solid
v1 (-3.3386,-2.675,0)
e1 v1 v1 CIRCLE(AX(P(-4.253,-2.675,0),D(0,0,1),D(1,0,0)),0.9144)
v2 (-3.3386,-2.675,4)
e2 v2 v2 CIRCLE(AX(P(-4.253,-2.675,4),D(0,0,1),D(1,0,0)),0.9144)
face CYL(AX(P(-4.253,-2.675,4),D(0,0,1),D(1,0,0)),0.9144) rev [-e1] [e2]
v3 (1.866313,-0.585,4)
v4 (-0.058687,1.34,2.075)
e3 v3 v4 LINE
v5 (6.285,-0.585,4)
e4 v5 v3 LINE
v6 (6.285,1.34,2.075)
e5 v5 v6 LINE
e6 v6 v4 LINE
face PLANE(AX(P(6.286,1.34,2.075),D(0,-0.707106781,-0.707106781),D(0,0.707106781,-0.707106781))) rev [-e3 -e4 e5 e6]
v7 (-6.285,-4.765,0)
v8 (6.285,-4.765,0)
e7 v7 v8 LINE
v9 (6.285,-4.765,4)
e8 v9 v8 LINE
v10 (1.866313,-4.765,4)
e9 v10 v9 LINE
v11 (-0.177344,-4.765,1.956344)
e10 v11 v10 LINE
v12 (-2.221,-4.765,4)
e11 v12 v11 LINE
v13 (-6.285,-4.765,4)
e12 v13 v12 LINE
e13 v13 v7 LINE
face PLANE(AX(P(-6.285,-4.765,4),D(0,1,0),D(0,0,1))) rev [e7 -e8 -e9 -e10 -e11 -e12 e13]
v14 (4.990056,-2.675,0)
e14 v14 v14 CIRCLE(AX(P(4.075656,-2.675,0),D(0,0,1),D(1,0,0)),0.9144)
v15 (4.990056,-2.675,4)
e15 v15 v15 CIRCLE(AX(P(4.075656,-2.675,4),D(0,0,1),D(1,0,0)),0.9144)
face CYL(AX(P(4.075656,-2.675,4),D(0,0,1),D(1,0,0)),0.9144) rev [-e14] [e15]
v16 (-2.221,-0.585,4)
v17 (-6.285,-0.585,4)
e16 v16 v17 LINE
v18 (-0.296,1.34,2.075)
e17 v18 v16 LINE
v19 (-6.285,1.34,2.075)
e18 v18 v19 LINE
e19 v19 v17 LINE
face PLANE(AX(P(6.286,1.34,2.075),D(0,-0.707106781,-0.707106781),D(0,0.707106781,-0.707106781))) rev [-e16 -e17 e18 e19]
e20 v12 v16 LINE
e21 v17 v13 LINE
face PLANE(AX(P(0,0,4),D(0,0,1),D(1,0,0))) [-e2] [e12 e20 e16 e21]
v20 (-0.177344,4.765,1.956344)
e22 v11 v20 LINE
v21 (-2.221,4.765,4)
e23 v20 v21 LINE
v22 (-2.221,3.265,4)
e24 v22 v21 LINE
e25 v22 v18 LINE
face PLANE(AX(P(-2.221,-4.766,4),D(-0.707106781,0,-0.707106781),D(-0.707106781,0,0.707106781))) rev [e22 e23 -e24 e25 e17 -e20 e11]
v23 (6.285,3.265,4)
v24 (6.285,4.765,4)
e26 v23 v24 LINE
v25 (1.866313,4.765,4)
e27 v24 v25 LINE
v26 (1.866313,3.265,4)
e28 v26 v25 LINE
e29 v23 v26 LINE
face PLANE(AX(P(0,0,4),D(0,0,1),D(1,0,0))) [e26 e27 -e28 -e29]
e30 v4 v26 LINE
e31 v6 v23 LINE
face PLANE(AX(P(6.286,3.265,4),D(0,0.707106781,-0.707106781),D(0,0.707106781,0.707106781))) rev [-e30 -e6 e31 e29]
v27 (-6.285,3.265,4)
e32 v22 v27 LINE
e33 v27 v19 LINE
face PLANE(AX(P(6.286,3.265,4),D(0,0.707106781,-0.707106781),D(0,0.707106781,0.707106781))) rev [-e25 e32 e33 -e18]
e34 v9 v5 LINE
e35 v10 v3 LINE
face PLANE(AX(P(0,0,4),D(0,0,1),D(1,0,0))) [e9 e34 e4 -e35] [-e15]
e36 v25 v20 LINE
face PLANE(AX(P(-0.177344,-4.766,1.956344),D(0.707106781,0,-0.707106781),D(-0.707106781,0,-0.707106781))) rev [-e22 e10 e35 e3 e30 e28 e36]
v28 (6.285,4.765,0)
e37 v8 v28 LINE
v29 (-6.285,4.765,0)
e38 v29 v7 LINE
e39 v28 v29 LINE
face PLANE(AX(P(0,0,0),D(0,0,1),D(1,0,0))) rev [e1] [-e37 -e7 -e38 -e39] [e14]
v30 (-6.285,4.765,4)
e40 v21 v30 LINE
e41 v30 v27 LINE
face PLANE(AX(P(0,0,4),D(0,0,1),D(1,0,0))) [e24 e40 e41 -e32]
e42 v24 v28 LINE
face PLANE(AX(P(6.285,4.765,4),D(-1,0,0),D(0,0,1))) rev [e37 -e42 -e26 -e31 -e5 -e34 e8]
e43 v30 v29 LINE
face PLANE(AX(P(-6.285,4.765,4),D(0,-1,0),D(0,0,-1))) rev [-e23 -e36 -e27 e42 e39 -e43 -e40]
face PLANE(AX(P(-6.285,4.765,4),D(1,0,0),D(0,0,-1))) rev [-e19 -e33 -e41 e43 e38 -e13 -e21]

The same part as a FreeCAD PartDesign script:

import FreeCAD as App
import Part
import Sketcher
from FreeCAD import Vector
Q = App.Units.Quantity

doc = App.newDocument("Part")
body = doc.addObject("PartDesign::Body", "Body")

# Sketch on XY plane
sketch1 = doc.addObject("Sketcher::SketchObject", "Sketch")
body.addObject(sketch1)
sketch1.AttachmentSupport = (doc.XY_Plane, [""])
sketch1.MapMode = "FlatFace"
sketch1.addGeometry([
    Part.LineSegment(Vector(-6, 5, 0), Vector(-6, -5, 0)),
    Part.LineSegment(Vector(-6, -5, 0), Vector(6, -5, 0)),
    Part.LineSegment(Vector(6, -5, 0), Vector(6, 5, 0)),
    Part.LineSegment(Vector(6, 5, 0), Vector(-6, 5, 0)),
], False)
sketch1.addConstraint([
    Sketcher.Constraint("Coincident", 0, 2, 1, 1),
    Sketcher.Constraint("Coincident", 1, 2, 2, 1),
    Sketcher.Constraint("Coincident", 2, 2, 3, 1),
    Sketcher.Constraint("Coincident", 3, 2, 0, 1),
    Sketcher.Constraint("Vertical", 0),
    Sketcher.Constraint("Horizontal", 1),
    Sketcher.Constraint("Vertical", 2),
    Sketcher.Constraint("Horizontal", 3),
    Sketcher.Constraint("Symmetric", 0, 2, 2, 2, -1, 1),
    Sketcher.Constraint("DistanceX", 1, 1, 1, 2, Q("12.57 mm")),
    Sketcher.Constraint("DistanceY", 0, 2, 0, 1, Q("9.53 mm")),
])
pad1 = doc.addObject("PartDesign::Pad", "Pad")
body.addObject(pad1)
pad1.Profile = sketch1
pad1.Length = 4

# Sketch on YZ plane
sketch2 = doc.addObject("Sketcher::SketchObject", "Sketch001")
body.addObject(sketch2)
sketch2.AttachmentSupport = (doc.YZ_Plane, [""])
sketch2.MapMode = "FlatFace"
sketch2.AttachmentOffset = App.Placement(Vector(0, 0, -6.285), App.Rotation())
sketch2.addGeometry([
    Part.LineSegment(Vector(-0.6, 4, 0), Vector(3.3, 4, 0)),
    Part.LineSegment(Vector(3.3, 4, 0), Vector(1.3, 2.1, 0)),
    Part.LineSegment(Vector(1.3, 2.1, 0), Vector(-0.6, 4, 0)),
], False)
sketch2.addConstraint([
    Sketcher.Constraint("Coincident", 0, 2, 1, 1),
    Sketcher.Constraint("Coincident", 1, 2, 2, 1),
    Sketcher.Constraint("Coincident", 2, 2, 0, 1),
    Sketcher.Constraint("Horizontal", 0),
    Sketcher.Constraint("Perpendicular", 1, 2),
    Sketcher.Constraint("Equal", 1, 2),
    Sketcher.Constraint("DistanceY", -1, 1, 0, 2, Q("4 mm")),
    Sketcher.Constraint("DistanceX", 0, 1, 0, 2, Q("3.85 mm")),
    Sketcher.Constraint("DistanceX", -1, 1, 1, 2, Q("1.34 mm")),
])
pocket1 = doc.addObject("PartDesign::Pocket", "Pocket")
body.addObject(pocket1)
pocket1.Profile = sketch2
pocket1.Type = "UpToFirst"
pocket1.Reversed = True

# Sketch on XZ plane
sketch3 = doc.addObject("Sketcher::SketchObject", "Sketch002")
body.addObject(sketch3)
sketch3.AttachmentSupport = (doc.XZ_Plane, [""])
sketch3.MapMode = "FlatFace"
sketch3.AttachmentOffset = App.Placement(Vector(0, 0, -4.765), App.Rotation())
sketch3.addGeometry([
    Part.LineSegment(Vector(-0.2, 2, 0), Vector(-2.2, 4, 0)),
    Part.LineSegment(Vector(-2.2, 4, 0), Vector(1.9, 4, 0)),
    Part.LineSegment(Vector(1.9, 4, 0), Vector(-0.2, 2, 0)),
], False)
sketch3.addConstraint([
    Sketcher.Constraint("Coincident", 0, 2, 1, 1),
    Sketcher.Constraint("Coincident", 1, 2, 2, 1),
    Sketcher.Constraint("Coincident", 2, 2, 0, 1),
    Sketcher.Constraint("Horizontal", 1),
    Sketcher.Constraint("Perpendicular", 0, 2),
    Sketcher.Constraint("Equal", 0, 2),
    Sketcher.Constraint("DistanceY", -1, 1, 0, 2, Q("4 mm")),
    Sketcher.Constraint("DistanceX", 0, 2, -1, 1, Q("2.221 mm")),
    Sketcher.Constraint("DistanceX", 1, 1, 1, 2, Q("4.087313 mm")),
])
pocket2 = doc.addObject("PartDesign::Pocket", "Pocket001")
body.addObject(pocket2)
pocket2.Profile = sketch3
pocket2.Length = 9.53
pocket2.Reversed = True

# Sketch on XY plane
sketch4 = doc.addObject("Sketcher::SketchObject", "Sketch003")
body.addObject(sketch4)
sketch4.AttachmentSupport = (doc.XY_Plane, [""])
sketch4.MapMode = "FlatFace"
sketch4.AttachmentOffset = App.Placement(Vector(0, 0, 4), App.Rotation())
sketch4.addGeometry([
    Part.Circle(Vector(-4.3, -2.7, 0), Vector(0, 0, 1), 0.9),
    Part.Circle(Vector(4.1, -2.7, 0), Vector(0, 0, 1), 0.9),
], False)
sketch4.addConstraint([
    Sketcher.Constraint("Equal", 0, 1),
    Sketcher.Constraint("Horizontal", 0, 3, 1, 3),
    Sketcher.Constraint("Diameter", 0, Q("1.8288 mm")),
    Sketcher.Constraint("DistanceX", 0, 3, -1, 1, Q("4.253 mm")),
    Sketcher.Constraint("DistanceY", 0, 3, -1, 1, Q("2.675 mm")),
    Sketcher.Constraint("DistanceX", -1, 1, 1, 3, Q("4.075656 mm")),
])
doc.recompute()
hole = doc.addObject("PartDesign::Hole", "Hole")
body.addObject(hole)
hole.Profile = sketch4
hole.ThreadType = "None"
hole.Diameter = 1.8288
hole.DepthType = "Dimension"
hole.Depth = 4
hole.DrillPoint = "Flat"

doc.recompute()
